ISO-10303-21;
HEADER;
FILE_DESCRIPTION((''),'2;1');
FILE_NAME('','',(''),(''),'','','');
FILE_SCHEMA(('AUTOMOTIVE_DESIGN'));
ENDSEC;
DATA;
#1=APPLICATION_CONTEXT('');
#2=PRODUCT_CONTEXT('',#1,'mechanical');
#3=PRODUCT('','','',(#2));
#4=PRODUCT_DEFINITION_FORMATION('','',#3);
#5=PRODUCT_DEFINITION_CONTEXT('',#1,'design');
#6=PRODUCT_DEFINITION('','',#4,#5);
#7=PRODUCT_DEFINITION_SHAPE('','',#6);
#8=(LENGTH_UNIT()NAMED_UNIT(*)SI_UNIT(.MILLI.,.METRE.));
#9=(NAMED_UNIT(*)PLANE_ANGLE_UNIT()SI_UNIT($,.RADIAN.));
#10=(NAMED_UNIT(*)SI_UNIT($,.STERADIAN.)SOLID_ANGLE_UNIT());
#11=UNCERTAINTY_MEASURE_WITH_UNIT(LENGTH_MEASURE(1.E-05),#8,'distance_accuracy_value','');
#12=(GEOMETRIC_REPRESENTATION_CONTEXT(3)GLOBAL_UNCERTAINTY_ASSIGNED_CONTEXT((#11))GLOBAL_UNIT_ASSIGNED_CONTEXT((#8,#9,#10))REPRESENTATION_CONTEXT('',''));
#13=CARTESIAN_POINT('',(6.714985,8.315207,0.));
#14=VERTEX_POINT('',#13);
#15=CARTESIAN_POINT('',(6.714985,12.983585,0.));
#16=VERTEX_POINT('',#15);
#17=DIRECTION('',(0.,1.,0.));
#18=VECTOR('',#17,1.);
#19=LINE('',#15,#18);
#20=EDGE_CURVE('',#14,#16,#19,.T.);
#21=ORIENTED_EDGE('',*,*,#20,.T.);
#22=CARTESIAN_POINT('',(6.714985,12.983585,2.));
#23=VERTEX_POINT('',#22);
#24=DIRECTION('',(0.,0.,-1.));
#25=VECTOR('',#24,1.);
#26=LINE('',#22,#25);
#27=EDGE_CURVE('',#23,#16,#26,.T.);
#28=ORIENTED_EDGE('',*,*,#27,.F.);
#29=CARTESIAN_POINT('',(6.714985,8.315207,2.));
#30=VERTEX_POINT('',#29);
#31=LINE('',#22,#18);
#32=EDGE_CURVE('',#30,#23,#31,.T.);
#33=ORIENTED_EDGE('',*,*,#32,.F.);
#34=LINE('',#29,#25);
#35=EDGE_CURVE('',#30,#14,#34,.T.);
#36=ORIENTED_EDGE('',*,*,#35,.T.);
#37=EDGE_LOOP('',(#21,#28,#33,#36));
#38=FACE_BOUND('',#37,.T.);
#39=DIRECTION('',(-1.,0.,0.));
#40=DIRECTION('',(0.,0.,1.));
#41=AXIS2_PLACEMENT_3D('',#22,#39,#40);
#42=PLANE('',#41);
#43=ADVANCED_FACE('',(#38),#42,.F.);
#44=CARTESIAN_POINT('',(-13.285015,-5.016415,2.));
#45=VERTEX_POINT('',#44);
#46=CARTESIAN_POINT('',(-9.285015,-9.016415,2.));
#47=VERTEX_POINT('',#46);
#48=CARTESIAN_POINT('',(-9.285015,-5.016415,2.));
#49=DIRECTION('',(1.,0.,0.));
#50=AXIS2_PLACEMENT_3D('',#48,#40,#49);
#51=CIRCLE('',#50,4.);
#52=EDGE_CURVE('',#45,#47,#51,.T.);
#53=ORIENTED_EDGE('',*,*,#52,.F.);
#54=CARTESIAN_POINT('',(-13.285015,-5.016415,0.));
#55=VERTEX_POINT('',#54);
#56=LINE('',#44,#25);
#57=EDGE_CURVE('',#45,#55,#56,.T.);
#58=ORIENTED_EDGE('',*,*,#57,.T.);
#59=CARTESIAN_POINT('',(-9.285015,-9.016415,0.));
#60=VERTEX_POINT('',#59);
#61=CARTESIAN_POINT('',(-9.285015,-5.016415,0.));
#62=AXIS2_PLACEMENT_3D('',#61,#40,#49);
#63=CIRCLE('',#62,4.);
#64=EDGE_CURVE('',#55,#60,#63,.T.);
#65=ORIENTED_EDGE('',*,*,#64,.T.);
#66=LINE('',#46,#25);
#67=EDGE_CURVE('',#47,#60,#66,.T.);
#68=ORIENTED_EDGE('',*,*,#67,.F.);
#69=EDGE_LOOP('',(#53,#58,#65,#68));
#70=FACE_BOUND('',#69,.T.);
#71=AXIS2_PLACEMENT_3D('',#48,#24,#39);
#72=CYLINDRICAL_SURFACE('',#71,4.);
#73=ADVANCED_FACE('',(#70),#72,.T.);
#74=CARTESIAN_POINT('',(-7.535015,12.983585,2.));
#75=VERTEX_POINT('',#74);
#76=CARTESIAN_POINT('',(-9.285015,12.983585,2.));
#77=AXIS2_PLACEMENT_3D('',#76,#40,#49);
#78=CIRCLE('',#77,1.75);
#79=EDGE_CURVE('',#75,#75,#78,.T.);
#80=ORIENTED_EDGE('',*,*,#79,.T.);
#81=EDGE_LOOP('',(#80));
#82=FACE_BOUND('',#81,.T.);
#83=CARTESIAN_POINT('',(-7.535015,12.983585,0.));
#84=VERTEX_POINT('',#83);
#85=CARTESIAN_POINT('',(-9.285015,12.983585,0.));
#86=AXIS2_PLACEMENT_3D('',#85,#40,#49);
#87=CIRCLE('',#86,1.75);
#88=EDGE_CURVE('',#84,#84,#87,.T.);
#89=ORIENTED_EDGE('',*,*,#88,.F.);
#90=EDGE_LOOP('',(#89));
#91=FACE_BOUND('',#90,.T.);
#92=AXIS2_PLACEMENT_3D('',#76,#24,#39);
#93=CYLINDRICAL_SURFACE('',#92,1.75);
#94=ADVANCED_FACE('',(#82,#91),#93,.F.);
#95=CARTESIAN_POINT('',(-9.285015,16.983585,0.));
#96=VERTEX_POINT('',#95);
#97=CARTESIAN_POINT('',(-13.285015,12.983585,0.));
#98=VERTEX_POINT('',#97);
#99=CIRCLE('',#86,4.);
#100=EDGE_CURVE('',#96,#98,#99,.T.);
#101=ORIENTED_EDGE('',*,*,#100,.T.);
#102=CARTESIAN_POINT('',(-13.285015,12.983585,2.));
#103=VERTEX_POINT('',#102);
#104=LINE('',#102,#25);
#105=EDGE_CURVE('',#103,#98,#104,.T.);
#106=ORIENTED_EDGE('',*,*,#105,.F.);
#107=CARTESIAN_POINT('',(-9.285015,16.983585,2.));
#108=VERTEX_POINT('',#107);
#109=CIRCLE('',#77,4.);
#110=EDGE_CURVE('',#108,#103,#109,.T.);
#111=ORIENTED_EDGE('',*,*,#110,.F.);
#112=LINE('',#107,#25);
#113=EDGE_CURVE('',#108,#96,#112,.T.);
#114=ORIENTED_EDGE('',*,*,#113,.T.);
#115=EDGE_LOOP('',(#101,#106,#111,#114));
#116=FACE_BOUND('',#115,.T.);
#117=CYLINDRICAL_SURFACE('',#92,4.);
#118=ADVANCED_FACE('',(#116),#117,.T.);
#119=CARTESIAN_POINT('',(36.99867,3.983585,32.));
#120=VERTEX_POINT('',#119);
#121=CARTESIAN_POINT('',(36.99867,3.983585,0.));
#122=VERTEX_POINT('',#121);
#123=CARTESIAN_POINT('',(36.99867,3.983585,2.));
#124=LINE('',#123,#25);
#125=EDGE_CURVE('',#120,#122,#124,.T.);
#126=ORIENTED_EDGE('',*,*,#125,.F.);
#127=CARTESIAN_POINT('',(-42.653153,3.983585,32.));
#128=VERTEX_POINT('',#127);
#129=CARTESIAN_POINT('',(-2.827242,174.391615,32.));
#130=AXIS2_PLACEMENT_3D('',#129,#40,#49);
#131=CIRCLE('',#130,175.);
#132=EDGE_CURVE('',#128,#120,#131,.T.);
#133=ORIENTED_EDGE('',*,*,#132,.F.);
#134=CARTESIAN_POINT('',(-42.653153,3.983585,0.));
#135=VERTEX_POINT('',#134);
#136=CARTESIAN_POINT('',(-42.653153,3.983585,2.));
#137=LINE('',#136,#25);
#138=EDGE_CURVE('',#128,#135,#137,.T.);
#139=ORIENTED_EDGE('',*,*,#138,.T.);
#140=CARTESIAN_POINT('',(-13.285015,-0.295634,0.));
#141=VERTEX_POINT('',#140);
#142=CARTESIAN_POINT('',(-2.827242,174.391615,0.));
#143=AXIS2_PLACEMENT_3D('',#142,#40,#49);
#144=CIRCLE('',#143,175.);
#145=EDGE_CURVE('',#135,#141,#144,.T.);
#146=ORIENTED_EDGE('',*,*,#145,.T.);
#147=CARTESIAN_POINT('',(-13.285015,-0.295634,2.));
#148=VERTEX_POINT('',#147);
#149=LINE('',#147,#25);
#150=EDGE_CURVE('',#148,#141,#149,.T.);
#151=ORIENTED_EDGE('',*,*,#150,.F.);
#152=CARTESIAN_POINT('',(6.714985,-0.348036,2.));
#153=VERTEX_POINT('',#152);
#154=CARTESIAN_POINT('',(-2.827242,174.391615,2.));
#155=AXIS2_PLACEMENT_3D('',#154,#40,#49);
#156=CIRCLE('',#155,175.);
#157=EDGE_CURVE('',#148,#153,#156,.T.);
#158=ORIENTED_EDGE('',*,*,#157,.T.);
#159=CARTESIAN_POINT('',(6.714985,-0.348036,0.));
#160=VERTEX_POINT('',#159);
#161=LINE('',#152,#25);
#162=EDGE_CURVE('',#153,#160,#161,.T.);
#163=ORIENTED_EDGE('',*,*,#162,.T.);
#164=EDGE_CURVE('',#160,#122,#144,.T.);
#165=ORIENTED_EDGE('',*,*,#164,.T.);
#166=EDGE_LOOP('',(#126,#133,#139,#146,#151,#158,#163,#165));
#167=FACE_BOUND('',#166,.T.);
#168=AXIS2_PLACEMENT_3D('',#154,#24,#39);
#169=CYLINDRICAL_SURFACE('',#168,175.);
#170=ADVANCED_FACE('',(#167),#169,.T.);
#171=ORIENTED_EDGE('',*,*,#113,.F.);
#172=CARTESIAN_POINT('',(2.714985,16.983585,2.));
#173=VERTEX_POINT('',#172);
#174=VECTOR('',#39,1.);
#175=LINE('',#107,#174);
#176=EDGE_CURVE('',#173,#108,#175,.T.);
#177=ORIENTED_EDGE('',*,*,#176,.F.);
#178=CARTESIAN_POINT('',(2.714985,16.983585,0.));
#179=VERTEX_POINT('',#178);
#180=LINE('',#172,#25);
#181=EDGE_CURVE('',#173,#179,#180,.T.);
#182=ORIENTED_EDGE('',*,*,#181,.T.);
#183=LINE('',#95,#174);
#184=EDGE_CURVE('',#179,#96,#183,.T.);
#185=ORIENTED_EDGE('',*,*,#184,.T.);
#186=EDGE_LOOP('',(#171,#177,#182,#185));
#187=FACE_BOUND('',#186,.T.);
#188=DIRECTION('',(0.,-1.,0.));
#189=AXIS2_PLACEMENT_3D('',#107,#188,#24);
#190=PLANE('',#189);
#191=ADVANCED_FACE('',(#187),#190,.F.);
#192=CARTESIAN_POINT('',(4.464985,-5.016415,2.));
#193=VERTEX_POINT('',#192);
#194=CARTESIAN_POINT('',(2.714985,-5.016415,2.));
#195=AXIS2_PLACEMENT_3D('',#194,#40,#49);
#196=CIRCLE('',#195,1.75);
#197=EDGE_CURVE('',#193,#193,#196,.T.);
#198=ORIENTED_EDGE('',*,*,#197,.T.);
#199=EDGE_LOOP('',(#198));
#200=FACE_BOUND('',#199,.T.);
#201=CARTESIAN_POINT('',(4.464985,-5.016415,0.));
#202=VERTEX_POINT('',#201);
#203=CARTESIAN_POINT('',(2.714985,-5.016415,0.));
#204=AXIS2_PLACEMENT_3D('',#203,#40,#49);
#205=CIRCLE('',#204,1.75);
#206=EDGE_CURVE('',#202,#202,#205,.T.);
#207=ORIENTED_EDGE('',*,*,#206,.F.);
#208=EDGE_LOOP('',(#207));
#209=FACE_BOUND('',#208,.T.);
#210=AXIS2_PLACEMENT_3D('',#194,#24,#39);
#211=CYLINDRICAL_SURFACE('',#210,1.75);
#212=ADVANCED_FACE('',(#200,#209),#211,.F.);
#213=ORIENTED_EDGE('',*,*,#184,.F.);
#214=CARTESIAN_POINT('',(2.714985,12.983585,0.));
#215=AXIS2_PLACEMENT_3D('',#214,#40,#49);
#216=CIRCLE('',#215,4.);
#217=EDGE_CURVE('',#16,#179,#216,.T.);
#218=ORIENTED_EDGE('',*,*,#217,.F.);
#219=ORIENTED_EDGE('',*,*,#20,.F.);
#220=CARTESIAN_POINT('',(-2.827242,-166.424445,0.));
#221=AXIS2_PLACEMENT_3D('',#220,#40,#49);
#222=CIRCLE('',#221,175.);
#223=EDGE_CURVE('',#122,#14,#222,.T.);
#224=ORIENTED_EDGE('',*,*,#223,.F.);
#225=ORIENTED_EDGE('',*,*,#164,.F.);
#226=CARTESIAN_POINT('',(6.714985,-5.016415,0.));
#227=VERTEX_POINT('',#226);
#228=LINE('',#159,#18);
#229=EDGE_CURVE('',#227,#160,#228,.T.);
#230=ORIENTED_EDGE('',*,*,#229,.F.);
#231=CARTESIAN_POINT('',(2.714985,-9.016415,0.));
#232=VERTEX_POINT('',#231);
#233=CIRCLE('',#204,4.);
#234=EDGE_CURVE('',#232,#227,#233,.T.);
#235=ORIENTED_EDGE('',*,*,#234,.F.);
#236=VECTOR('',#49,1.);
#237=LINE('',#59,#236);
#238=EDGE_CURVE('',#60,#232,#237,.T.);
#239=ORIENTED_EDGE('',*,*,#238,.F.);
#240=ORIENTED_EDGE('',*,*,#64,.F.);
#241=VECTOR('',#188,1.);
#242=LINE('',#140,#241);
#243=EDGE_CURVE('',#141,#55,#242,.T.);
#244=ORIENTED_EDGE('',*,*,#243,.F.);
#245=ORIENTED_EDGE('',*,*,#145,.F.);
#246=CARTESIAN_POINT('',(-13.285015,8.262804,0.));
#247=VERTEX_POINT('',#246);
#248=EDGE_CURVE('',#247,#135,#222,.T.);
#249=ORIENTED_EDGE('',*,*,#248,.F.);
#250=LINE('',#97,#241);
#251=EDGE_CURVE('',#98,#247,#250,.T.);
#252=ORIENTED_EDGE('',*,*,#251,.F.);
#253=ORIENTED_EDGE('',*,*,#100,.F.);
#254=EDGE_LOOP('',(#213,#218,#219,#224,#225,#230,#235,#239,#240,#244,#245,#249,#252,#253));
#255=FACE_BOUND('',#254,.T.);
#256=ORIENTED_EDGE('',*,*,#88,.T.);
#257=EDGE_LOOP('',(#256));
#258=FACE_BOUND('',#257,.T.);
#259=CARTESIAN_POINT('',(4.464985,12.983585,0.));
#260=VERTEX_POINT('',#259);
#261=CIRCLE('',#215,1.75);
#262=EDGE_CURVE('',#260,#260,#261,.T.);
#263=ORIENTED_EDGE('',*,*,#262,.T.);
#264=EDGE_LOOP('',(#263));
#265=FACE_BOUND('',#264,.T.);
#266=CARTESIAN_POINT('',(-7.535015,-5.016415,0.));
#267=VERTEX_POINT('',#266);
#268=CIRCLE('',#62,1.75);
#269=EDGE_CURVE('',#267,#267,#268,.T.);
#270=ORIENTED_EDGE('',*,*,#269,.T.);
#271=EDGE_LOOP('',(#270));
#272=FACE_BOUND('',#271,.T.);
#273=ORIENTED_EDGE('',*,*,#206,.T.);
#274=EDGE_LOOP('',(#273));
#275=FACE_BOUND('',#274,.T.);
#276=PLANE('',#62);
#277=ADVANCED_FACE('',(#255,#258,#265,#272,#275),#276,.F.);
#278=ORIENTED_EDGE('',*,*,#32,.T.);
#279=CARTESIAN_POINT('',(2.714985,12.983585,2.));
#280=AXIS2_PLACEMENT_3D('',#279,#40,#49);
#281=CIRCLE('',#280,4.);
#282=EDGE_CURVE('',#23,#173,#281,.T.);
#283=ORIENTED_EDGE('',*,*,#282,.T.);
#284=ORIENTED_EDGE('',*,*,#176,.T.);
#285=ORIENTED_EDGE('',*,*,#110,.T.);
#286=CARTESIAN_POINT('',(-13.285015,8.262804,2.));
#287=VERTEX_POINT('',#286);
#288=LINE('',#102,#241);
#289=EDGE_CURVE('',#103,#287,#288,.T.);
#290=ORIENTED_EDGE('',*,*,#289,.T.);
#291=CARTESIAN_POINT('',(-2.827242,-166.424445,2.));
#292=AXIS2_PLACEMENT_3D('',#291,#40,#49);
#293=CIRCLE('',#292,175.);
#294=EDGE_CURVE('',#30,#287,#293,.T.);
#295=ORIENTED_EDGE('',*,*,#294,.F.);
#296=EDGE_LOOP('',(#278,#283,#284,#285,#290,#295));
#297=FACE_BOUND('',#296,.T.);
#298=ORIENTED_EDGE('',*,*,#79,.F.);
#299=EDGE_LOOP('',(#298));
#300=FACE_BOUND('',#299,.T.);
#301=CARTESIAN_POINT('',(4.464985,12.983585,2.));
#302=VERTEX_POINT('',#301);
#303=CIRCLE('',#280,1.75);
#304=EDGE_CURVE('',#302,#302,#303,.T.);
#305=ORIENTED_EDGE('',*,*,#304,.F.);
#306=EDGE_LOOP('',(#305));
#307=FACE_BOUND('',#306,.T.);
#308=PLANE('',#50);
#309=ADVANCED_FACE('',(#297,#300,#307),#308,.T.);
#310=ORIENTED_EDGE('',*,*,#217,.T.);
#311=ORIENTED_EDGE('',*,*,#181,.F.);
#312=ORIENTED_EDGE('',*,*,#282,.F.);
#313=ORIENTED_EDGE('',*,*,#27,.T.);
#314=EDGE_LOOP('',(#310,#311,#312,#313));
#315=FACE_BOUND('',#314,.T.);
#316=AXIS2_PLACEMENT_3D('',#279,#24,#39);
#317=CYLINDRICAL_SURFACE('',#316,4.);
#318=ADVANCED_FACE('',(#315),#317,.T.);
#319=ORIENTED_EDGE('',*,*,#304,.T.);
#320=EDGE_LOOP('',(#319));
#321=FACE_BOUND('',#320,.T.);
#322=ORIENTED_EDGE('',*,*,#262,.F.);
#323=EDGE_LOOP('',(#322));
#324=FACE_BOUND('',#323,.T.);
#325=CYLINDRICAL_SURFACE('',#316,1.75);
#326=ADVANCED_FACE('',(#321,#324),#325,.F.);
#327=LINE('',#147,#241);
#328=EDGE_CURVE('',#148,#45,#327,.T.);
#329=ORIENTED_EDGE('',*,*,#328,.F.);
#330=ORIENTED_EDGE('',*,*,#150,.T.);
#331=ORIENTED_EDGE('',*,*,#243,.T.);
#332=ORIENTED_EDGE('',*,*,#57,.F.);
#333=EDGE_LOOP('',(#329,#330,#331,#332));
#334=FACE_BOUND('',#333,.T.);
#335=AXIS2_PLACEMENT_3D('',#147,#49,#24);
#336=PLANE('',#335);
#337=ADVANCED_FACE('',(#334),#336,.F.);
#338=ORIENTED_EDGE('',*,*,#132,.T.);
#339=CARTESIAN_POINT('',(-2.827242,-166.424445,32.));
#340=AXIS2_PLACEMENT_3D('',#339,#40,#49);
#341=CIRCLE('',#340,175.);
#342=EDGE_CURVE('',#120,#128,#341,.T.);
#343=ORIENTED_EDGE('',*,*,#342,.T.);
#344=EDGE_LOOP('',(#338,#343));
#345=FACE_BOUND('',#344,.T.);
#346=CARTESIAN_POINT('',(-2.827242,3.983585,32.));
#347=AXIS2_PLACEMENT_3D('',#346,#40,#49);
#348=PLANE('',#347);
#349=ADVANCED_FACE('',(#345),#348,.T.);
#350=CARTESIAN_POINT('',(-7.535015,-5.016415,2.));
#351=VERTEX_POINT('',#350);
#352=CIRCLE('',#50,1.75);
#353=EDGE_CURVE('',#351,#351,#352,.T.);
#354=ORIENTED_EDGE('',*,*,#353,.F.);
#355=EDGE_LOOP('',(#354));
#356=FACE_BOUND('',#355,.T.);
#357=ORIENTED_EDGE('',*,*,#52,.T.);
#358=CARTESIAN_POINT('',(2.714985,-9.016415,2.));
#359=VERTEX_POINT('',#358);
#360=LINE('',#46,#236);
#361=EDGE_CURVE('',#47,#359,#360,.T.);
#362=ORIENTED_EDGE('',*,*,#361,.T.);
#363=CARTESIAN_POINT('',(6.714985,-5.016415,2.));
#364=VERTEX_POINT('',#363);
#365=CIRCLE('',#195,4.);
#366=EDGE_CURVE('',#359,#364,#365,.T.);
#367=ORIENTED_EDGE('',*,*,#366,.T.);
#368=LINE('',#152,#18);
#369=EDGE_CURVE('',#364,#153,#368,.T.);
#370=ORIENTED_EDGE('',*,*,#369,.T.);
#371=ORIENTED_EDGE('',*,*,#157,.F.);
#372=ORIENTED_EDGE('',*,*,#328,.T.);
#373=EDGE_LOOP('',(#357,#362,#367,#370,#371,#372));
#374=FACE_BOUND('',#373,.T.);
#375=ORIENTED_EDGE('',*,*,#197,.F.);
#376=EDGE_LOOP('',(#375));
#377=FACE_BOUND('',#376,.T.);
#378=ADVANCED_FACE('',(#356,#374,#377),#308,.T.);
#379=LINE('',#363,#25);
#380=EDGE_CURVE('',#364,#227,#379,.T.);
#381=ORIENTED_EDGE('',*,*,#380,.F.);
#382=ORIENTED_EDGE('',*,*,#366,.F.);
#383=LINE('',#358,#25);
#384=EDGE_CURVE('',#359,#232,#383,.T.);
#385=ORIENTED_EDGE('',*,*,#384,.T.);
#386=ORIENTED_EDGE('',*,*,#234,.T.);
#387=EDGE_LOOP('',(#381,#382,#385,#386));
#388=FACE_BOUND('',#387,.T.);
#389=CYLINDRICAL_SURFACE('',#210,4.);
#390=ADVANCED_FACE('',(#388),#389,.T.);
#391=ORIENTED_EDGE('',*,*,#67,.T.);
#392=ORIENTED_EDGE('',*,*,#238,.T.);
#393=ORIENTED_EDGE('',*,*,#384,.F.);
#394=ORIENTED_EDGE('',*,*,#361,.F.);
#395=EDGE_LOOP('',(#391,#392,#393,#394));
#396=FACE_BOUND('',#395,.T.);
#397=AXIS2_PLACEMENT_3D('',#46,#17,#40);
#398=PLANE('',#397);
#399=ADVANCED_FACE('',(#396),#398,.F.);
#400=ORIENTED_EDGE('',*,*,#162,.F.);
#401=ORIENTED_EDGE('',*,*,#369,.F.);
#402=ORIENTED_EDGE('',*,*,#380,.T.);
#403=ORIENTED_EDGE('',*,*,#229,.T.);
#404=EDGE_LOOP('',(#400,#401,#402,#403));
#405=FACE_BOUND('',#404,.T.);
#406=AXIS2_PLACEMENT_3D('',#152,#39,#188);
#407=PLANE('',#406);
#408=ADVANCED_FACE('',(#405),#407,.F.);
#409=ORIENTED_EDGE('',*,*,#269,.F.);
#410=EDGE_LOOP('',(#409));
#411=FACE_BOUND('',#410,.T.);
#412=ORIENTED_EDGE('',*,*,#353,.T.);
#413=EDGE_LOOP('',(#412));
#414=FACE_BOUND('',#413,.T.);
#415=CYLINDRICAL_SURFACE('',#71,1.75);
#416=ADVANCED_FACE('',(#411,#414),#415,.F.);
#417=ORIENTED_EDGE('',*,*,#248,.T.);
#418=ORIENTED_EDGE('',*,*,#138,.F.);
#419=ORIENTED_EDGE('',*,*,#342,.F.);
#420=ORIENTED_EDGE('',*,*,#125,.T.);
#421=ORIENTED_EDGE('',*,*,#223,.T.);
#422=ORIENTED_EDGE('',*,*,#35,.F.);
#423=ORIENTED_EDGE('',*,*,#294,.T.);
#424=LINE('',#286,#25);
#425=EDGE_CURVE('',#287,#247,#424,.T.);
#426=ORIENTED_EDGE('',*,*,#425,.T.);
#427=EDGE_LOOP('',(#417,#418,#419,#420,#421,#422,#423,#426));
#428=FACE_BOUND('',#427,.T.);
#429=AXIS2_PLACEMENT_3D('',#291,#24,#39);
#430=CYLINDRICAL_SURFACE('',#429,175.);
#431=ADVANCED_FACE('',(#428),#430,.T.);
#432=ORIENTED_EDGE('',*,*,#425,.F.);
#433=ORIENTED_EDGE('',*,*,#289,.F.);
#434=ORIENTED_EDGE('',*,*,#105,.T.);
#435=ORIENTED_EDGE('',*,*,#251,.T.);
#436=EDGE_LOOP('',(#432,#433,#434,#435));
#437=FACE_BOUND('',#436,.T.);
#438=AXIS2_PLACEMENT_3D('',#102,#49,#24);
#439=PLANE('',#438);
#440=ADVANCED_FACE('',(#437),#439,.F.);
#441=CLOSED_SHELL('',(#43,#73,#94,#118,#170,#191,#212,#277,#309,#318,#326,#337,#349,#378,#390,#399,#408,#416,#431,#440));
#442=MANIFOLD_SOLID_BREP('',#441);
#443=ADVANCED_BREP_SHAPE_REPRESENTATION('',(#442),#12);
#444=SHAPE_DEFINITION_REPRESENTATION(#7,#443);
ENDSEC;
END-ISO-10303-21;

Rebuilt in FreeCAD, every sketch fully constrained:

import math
import FreeCAD as App
import Part
import Sketcher

doc = App.newDocument("Part")
body = doc.addObject("PartDesign::Body", "Body")

sketch1 = doc.addObject("Sketcher::SketchObject", "Sketch")
body.addObject(sketch1)
sketch1.AttachmentSupport = (doc.XY_Plane, [""])
sketch1.MapMode = "FlatFace"
sketch1.addGeometry([
    Part.LineSegment(App.Vector(-13.3, -0.3, 0), App.Vector(-13.3, -5, 0)),
    Part.ArcOfCircle(Part.Circle(App.Vector(-9.3, -5, 0), App.Vector(0, 0, 1), 4), math.radians(-180), math.radians(-90)),
    Part.LineSegment(App.Vector(-9.3, -9, 0), App.Vector(2.7, -9, 0)),
    Part.ArcOfCircle(Part.Circle(App.Vector(2.7, -5, 0), App.Vector(0, 0, 1), 4), math.radians(-90), math.radians(0)),
    Part.LineSegment(App.Vector(6.7, -5, 0), App.Vector(6.7, -0.3, 0)),
    Part.ArcOfCircle(Part.Circle(App.Vector(-2.8, 174.4, 0), App.Vector(0, 0, 1), 175), math.radians(-86.87), math.radians(-76.85)),
    Part.ArcOfCircle(Part.Circle(App.Vector(-2.8, -166.4, 0), App.Vector(0, 0, 1), 175), math.radians(76.85), math.radians(86.87)),
    Part.LineSegment(App.Vector(6.7, 8.3, 0), App.Vector(6.7, 13, 0)),
    Part.ArcOfCircle(Part.Circle(App.Vector(2.7, 13, 0), App.Vector(0, 0, 1), 4), math.radians(0), math.radians(90)),
    Part.LineSegment(App.Vector(2.7, 17, 0), App.Vector(-9.3, 17, 0)),
    Part.ArcOfCircle(Part.Circle(App.Vector(-9.3, 13, 0), App.Vector(0, 0, 1), 4), math.radians(90), math.radians(180)),
    Part.LineSegment(App.Vector(-13.3, 13, 0), App.Vector(-13.3, 8.3, 0)),
    Part.ArcOfCircle(Part.Circle(App.Vector(-2.8, -166.4, 0), App.Vector(0, 0, 1), 175), math.radians(93.43), math.radians(103.15)),
    Part.ArcOfCircle(Part.Circle(App.Vector(-2.8, 174.4, 0), App.Vector(0, 0, 1), 175), math.radians(-103.15), math.radians(-93.43)),
    Part.Circle(App.Vector(-9.3, -5, 0), App.Vector(0, 0, 1), 1.8),
    Part.Circle(App.Vector(2.7, -5, 0), App.Vector(0, 0, 1), 1.8),
    Part.Circle(App.Vector(-9.3, 13, 0), App.Vector(0, 0, 1), 1.8),
    Part.Circle(App.Vector(2.7, 13, 0), App.Vector(0, 0, 1), 1.8),
], False)
sketch1.addConstraint([
    Sketcher.Constraint("Tangent", 0, 2, 1, 1),
    Sketcher.Constraint("Tangent", 1, 2, 2, 1),
    Sketcher.Constraint("Tangent", 2, 2, 3, 1),
    Sketcher.Constraint("Tangent", 3, 2, 4, 1),
    Sketcher.Constraint("Coincident", 4, 2, 5, 1),
    Sketcher.Constraint("Coincident", 5, 2, 6, 1),
    Sketcher.Constraint("Coincident", 6, 2, 7, 1),
    Sketcher.Constraint("Tangent", 7, 2, 8, 1),
    Sketcher.Constraint("Tangent", 8, 2, 9, 1),
    Sketcher.Constraint("Tangent", 9, 2, 10, 1),
    Sketcher.Constraint("Tangent", 10, 2, 11, 1),
    Sketcher.Constraint("Coincident", 11, 2, 12, 1),
    Sketcher.Constraint("Coincident", 12, 2, 13, 1),
    Sketcher.Constraint("Coincident", 13, 2, 0, 1),
    Sketcher.Constraint("Vertical", 0),
    Sketcher.Constraint("Horizontal", 2),
    Sketcher.Constraint("Vertical", 4),
    Sketcher.Constraint("Vertical", 7),
    Sketcher.Constraint("Horizontal", 9),
    Sketcher.Constraint("Vertical", 11),
    Sketcher.Constraint("Coincident", 12, 3, 6, 3),
    Sketcher.Constraint("Coincident", 13, 3, 5, 3),
    Sketcher.Constraint("Coincident", 14, 3, 1, 3),
    Sketcher.Constraint("Coincident", 15, 3, 3, 3),
    Sketcher.Constraint("Coincident", 16, 3, 10, 3),
    Sketcher.Constraint("Coincident", 17, 3, 8, 3),
    Sketcher.Constraint("Equal", 1, 3),
    Sketcher.Constraint("Equal", 5, 6),
    Sketcher.Constraint("Equal", 3, 8),
    Sketcher.Constraint("Equal", 8, 10),
    Sketcher.Constraint("Equal", 6, 12),
    Sketcher.Constraint("Equal", 12, 13),
    Sketcher.Constraint("Equal", 14, 15),
    Sketcher.Constraint("Equal", 15, 16),
    Sketcher.Constraint("Equal", 16, 17),
    Sketcher.Constraint("Horizontal", 5, 2, 12, 2),
    Sketcher.Constraint("Vertical", 3, 3, 8, 3),
    Sketcher.Constraint("Vertical", 1, 3, 10, 3),
    Sketcher.Constraint("Equal", 4, 7),
    Sketcher.Constraint("Radius", 1, 4.0),
    Sketcher.Constraint("Radius", 5, 175.0),
    Sketcher.Constraint("Diameter", 14, 3.5),
    Sketcher.Constraint("DistanceX", 2, 1, 2, 2, 12.0),
    Sketcher.Constraint("DistanceY", 3, 3, 8, 3, 18.0),
    Sketcher.Constraint("DistanceY", 0, 2, 0, 1, 4.720781),
    Sketcher.Constraint("DistanceY", 4, 1, 4, 2, 4.668378),
    Sketcher.Constraint("DistanceX", 5, 3, -1, 1, 2.827242),
    Sketcher.Constraint("DistanceY", 1, 3, -1, 1, 5.016415),
])
pad1 = doc.addObject("PartDesign::Pad", "Pad")
body.addObject(pad1)
pad1.Profile = sketch1
pad1.Length = 2

sketch2 = doc.addObject("Sketcher::SketchObject", "Sketch001")
body.addObject(sketch2)
sketch2.AttachmentSupport = (doc.XY_Plane, [""])
sketch2.MapMode = "FlatFace"
sketch2.AttachmentOffset = App.Placement(App.Vector(0, 0, 2), App.Rotation())
sketch2.addGeometry([
    Part.ArcOfCircle(Part.Circle(App.Vector(-3, -166, 0), App.Vector(0, 0, 1), 175), math.radians(77), math.radians(103)),
    Part.ArcOfCircle(Part.Circle(App.Vector(-3, 174, 0), App.Vector(0, 0, 1), 175), math.radians(-103), math.radians(-77)),
], False)
sketch2.addConstraint([
    Sketcher.Constraint("Coincident", 0, 1, 1, 2),
    Sketcher.Constraint("Coincident", 1, 1, 0, 2),
    Sketcher.Constraint("Equal", 0, 1),
    Sketcher.Constraint("Horizontal", 0, 1, 1, 1),
    Sketcher.Constraint("Radius", 0, 175.0),
    Sketcher.Constraint("DistanceX", 0, 3, -1, 1, 2.827242),
    Sketcher.Constraint("DistanceX", -1, 1, 0, 1, 36.99867),
    Sketcher.Constraint("DistanceY", 0, 3, -1, 1, 166.424445),
])
pad2 = doc.addObject("PartDesign::Pad", "Pad001")
body.addObject(pad2)
pad2.Profile = sketch2
pad2.Length = 30

doc.recompute()
